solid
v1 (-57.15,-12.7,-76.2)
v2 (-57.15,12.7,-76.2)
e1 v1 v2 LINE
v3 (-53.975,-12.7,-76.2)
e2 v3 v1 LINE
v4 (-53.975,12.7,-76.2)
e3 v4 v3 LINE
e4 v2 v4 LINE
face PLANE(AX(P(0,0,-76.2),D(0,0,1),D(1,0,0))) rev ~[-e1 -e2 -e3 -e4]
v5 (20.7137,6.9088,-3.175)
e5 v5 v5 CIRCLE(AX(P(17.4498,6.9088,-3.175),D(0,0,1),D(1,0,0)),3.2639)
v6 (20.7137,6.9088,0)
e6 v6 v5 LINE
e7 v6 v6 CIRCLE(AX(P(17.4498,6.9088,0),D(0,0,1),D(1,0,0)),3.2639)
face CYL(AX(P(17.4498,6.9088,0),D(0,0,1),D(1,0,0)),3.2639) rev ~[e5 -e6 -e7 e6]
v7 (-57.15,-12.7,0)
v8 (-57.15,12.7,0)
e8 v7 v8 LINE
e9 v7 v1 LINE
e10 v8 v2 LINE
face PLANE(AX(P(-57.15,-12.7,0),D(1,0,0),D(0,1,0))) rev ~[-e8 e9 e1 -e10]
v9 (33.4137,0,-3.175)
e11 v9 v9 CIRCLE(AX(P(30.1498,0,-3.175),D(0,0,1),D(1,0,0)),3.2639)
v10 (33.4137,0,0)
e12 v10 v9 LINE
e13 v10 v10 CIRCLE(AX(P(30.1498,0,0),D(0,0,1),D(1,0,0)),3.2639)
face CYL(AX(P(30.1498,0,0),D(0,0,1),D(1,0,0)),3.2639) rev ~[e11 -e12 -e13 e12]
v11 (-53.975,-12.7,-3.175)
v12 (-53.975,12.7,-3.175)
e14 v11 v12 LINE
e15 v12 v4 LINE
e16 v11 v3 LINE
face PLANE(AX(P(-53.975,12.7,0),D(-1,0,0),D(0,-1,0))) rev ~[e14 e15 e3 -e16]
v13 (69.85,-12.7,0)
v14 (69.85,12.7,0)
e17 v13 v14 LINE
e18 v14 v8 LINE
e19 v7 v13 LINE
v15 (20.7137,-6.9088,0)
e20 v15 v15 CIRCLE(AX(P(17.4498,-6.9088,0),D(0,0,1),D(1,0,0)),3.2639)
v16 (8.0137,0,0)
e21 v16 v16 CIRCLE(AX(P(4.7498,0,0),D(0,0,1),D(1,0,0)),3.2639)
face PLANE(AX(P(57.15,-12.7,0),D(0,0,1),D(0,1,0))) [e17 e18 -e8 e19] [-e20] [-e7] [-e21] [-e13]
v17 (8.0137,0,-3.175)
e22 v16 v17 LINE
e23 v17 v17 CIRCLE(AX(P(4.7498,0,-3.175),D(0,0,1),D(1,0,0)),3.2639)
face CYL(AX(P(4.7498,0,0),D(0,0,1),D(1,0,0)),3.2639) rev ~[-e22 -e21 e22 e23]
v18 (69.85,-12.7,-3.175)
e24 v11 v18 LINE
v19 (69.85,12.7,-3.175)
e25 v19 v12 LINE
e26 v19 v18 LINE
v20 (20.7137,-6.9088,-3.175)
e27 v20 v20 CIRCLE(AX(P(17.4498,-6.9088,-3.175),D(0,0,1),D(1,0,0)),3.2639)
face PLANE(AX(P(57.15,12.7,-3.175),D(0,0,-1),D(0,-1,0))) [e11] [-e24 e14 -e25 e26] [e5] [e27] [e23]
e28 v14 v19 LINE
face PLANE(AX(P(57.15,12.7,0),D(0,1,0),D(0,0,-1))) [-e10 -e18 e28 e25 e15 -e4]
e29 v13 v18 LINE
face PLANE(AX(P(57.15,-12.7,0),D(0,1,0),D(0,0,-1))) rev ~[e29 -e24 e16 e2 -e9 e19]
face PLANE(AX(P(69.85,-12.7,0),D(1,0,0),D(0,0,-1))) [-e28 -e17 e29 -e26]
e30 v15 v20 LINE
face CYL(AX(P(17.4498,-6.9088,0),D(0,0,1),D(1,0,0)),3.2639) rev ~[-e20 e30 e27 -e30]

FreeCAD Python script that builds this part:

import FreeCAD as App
import Part
import Sketcher
from FreeCAD import Vector
Q = App.Units.Quantity

doc = App.newDocument("Part")
params = doc.addObject("Spreadsheet::Sheet", "Params")
for row, (alias, value) in enumerate([
    ("sketch1_height", "1 in"),
    ("sketch1_width", "4.5 in"),
    ("pad1_length", "0.125 in"),
    ("sketch2_width", "1 in"),
    ("sketch2_height", "0.125 in"),
    ("pocket1_length", "0.125 in"),
    ("sketch3_width", "0.125 in"),
    ("sketch3_height", "1 in"),
    ("pad2_length", "3 in"),
    ("sketch4_width", "1 in"),
    ("sketch4_height", "0.125 in"),
    ("pad3_length", "0.5 in"),
    ("sketch5_diameter", "0.257 in"),
    ("pocket2_length", "0.125 in"),
    ("sketch6_diameter", "0.257 in"),
    ("pocket3_length", "0.125 in"),
    ("sketch7_diameter", "0.257 in"),
    ("pocket4_length", "0.125 in"),
], start=1):
    params.set(f"A{row}", alias)
    params.set(f"B{row}", "=" + value)
    params.setAlias(f"B{row}", alias)

body = doc.addObject("PartDesign::Body", "Body")

# Sketch on XY plane
sketch1 = body.newObject("Sketcher::SketchObject", "Sketch")
sketch1.AttachmentSupport = (doc.getObject("XY_Plane"), [""])
sketch1.MapMode = "FlatFace"
sketch1.addGeometry([
    Part.LineSegment(Vector(57, -13, 0), Vector(57, 13, 0)),
    Part.LineSegment(Vector(57, 13, 0), Vector(-57, 13, 0)),
    Part.LineSegment(Vector(-57, 13, 0), Vector(-57, -13, 0)),
    Part.LineSegment(Vector(-57, -13, 0), Vector(57, -13, 0)),
], False)
sketch1.addConstraint([
    Sketcher.Constraint("Coincident", 0, 2, 1, 1),
    Sketcher.Constraint("Coincident", 1, 2, 2, 1),
    Sketcher.Constraint("Coincident", 2, 2, 3, 1),
    Sketcher.Constraint("Coincident", 3, 2, 0, 1),
    Sketcher.Constraint("Vertical", 0),
    Sketcher.Constraint("Horizontal", 1),
    Sketcher.Constraint("Vertical", 2),
    Sketcher.Constraint("Horizontal", 3),
    Sketcher.Constraint("Symmetric", 0, 2, 2, 2, -1, 1),
    Sketcher.Constraint("DistanceY", 0, 1, 0, 2, Q("1 in")),
    Sketcher.Constraint("DistanceX", 1, 2, 1, 1, Q("4.5 in")),
])
sketch1.setExpression("Constraints[9]", "Params.sketch1_height")
sketch1.setExpression("Constraints[10]", "Params.sketch1_width")
pad1 = body.newObject("PartDesign::Pad", "Pad")
pad1.Profile = sketch1
pad1.setExpression("Length", "Params.pad1_length")
pad1.Reversed = True

# Sketch on YZ plane
sketch2 = body.newObject("Sketcher::SketchObject", "Sketch001")
sketch2.AttachmentSupport = (doc.getObject("YZ_Plane"), [""])
sketch2.MapMode = "FlatFace"
sketch2.AttachmentOffset = App.Placement(Vector(0, 0, -2.25 * 25.4), App.Rotation())
sketch2.addGeometry([
    Part.LineSegment(Vector(-12.7, 0, 0), Vector(12.7, 0, 0)),
    Part.LineSegment(Vector(12.7, 0, 0), Vector(12.7, -3.2, 0)),
    Part.LineSegment(Vector(12.7, -3.2, 0), Vector(-12.7, -3.2, 0)),
    Part.LineSegment(Vector(-12.7, -3.2, 0), Vector(-12.7, 0, 0)),
], False)
sketch2.addConstraint([
    Sketcher.Constraint("Coincident", 0, 2, 1, 1),
    Sketcher.Constraint("Coincident", 1, 2, 2, 1),
    Sketcher.Constraint("Coincident", 2, 2, 3, 1),
    Sketcher.Constraint("Coincident", 3, 2, 0, 1),
    Sketcher.Constraint("Horizontal", 0),
    Sketcher.Constraint("Vertical", 1),
    Sketcher.Constraint("Horizontal", 2),
    Sketcher.Constraint("Vertical", 3),
    Sketcher.Constraint("Symmetric", 0, 2, 3, 2, -1, 1),
    Sketcher.Constraint("DistanceX", 0, 1, 0, 2, Q("1 in")),
    Sketcher.Constraint("DistanceY", 1, 2, 1, 1, Q("0.125 in")),
])
sketch2.setExpression("Constraints[9]", "Params.sketch2_width")
sketch2.setExpression("Constraints[10]", "Params.sketch2_height")
pocket1 = body.newObject("PartDesign::Pocket", "Pocket")
pocket1.Profile = sketch2
pocket1.setExpression("Length", "Params.pocket1_length")
pocket1.Reversed = True

# Sketch on XY plane
sketch3 = body.newObject("Sketcher::SketchObject", "Sketch002")
sketch3.AttachmentSupport = (doc.getObject("XY_Plane"), [""])
sketch3.MapMode = "FlatFace"
sketch3.addGeometry([
    Part.LineSegment(Vector(-57.1, -12.7, 0), Vector(-54, -12.7, 0)),
    Part.LineSegment(Vector(-54, -12.7, 0), Vector(-54, 12.7, 0)),
    Part.LineSegment(Vector(-54, 12.7, 0), Vector(-57.1, 12.7, 0)),
    Part.LineSegment(Vector(-57.1, 12.7, 0), Vector(-57.1, -12.7, 0)),
], False)
sketch3.addConstraint([
    Sketcher.Constraint("Coincident", 0, 2, 1, 1),
    Sketcher.Constraint("Coincident", 1, 2, 2, 1),
    Sketcher.Constraint("Coincident", 2, 2, 3, 1),
    Sketcher.Constraint("Coincident", 3, 2, 0, 1),
    Sketcher.Constraint("Horizontal", 0),
    Sketcher.Constraint("Vertical", 1),
    Sketcher.Constraint("Horizontal", 2),
    Sketcher.Constraint("Vertical", 3),
    Sketcher.Constraint("DistanceX", 0, 1, 0, 2, Q("0.125 in")),
    Sketcher.Constraint("DistanceY", 1, 1, 1, 2, Q("1 in")),
    Sketcher.Constraint("DistanceY", 0, 2, -1, 1, Q("0.5 in")),
    Sketcher.Constraint("DistanceX", 2, 2, -1, 1, Q("2.25 in")),
])
sketch3.setExpression("Constraints[8]", "Params.sketch3_width")
sketch3.setExpression("Constraints[9]", "Params.sketch3_height")
pad2 = body.newObject("PartDesign::Pad", "Pad001")
pad2.Profile = sketch3
pad2.setExpression("Length", "Params.pad2_length")
pad2.Reversed = True

# Sketch on YZ plane
sketch4 = body.newObject("Sketcher::SketchObject", "Sketch003")
sketch4.AttachmentSupport = (doc.getObject("YZ_Plane"), [""])
sketch4.MapMode = "FlatFace"
sketch4.AttachmentOffset = App.Placement(Vector(0, 0, 2.25 * 25.4), App.Rotation())
sketch4.addGeometry([
    Part.LineSegment(Vector(12.7, 0, 0), Vector(-12.7, 0, 0)),
    Part.LineSegment(Vector(-12.7, 0, 0), Vector(-12.7, -3.2, 0)),
    Part.LineSegment(Vector(-12.7, -3.2, 0), Vector(12.7, -3.2, 0)),
    Part.LineSegment(Vector(12.7, -3.2, 0), Vector(12.7, 0, 0)),
], False)
sketch4.addConstraint([
    Sketcher.Constraint("Coincident", 0, 2, 1, 1),
    Sketcher.Constraint("Coincident", 1, 2, 2, 1),
    Sketcher.Constraint("Coincident", 2, 2, 3, 1),
    Sketcher.Constraint("Coincident", 3, 2, 0, 1),
    Sketcher.Constraint("Horizontal", 0),
    Sketcher.Constraint("Vertical", 1),
    Sketcher.Constraint("Horizontal", 2),
    Sketcher.Constraint("Vertical", 3),
    Sketcher.Constraint("Symmetric", 0, 2, 3, 2, -1, 1),
    Sketcher.Constraint("DistanceX", 0, 2, 0, 1, Q("1 in")),
    Sketcher.Constraint("DistanceY", 1, 2, 1, 1, Q("0.125 in")),
])
sketch4.setExpression("Constraints[9]", "Params.sketch4_width")
sketch4.setExpression("Constraints[10]", "Params.sketch4_height")
pad3 = body.newObject("PartDesign::Pad", "Pad002")
pad3.Profile = sketch4
pad3.setExpression("Length", "Params.pad3_length")

# Sketch on XY plane
sketch5 = body.newObject("Sketcher::SketchObject", "Sketch004")
sketch5.AttachmentSupport = (doc.getObject("XY_Plane"), [""])
sketch5.MapMode = "FlatFace"
sketch5.addGeometry(Part.Circle(Vector(4.7, 0, 0), Vector(0, 0, 1), 3.3), False)
sketch5.addConstraint([
    Sketcher.Constraint("PointOnObject", 0, 3, -1),
    Sketcher.Constraint("Diameter", 0, Q("0.257 in")),
    Sketcher.Constraint("DistanceX", -1, 1, 0, 3, Q("0.187 in")),
])
sketch5.setExpression("Constraints[1]", "Params.sketch5_diameter")
pocket2 = body.newObject("PartDesign::Pocket", "Pocket001")
pocket2.Profile = sketch5
pocket2.setExpression("Length", "Params.pocket2_length")

# Sketch on XY plane
sketch6 = body.newObject("Sketcher::SketchObject", "Sketch005")
sketch6.AttachmentSupport = (doc.getObject("XY_Plane"), [""])
sketch6.MapMode = "FlatFace"
sketch6.addGeometry(Part.Circle(Vector(30.1, 0, 0), Vector(0, 0, 1), 3.3), False)
sketch6.addConstraint([
    Sketcher.Constraint("PointOnObject", 0, 3, -1),
    Sketcher.Constraint("Diameter", 0, Q("0.257 in")),
    Sketcher.Constraint("DistanceX", -1, 1, 0, 3, Q("1.187 in")),
])
sketch6.setExpression("Constraints[1]", "Params.sketch6_diameter")
pocket3 = body.newObject("PartDesign::Pocket", "Pocket002")
pocket3.Profile = sketch6
pocket3.setExpression("Length", "Params.pocket3_length")

# Sketch on XY plane
sketch7 = body.newObject("Sketcher::SketchObject", "Sketch006")
sketch7.AttachmentSupport = (doc.getObject("XY_Plane"), [""])
sketch7.MapMode = "FlatFace"
sketch7.addGeometry([
    Part.Circle(Vector(17.4, 6.9, 0), Vector(0, 0, 1), 3.3),
    Part.Circle(Vector(17.4, -6.9, 0), Vector(0, 0, 1), 3.3),
], False)
sketch7.addConstraint([
    Sketcher.Constraint("Equal", 0, 1),
    Sketcher.Constraint("Symmetric", 0, 3, 1, 3, -1),
    Sketcher.Constraint("Diameter", 0, Q("0.257 in")),
    Sketcher.Constraint("DistanceX", -1, 1, 0, 3, Q("0.687 in")),
    Sketcher.Constraint("DistanceY", -1, 1, 0, 3, Q("0.272 in")),
])
sketch7.setExpression("Constraints[2]", "Params.sketch7_diameter")
pocket4 = body.newObject("PartDesign::Pocket", "Pocket003")
pocket4.Profile = sketch7
pocket4.setExpression("Length", "Params.pocket4_length")

doc.recompute()
